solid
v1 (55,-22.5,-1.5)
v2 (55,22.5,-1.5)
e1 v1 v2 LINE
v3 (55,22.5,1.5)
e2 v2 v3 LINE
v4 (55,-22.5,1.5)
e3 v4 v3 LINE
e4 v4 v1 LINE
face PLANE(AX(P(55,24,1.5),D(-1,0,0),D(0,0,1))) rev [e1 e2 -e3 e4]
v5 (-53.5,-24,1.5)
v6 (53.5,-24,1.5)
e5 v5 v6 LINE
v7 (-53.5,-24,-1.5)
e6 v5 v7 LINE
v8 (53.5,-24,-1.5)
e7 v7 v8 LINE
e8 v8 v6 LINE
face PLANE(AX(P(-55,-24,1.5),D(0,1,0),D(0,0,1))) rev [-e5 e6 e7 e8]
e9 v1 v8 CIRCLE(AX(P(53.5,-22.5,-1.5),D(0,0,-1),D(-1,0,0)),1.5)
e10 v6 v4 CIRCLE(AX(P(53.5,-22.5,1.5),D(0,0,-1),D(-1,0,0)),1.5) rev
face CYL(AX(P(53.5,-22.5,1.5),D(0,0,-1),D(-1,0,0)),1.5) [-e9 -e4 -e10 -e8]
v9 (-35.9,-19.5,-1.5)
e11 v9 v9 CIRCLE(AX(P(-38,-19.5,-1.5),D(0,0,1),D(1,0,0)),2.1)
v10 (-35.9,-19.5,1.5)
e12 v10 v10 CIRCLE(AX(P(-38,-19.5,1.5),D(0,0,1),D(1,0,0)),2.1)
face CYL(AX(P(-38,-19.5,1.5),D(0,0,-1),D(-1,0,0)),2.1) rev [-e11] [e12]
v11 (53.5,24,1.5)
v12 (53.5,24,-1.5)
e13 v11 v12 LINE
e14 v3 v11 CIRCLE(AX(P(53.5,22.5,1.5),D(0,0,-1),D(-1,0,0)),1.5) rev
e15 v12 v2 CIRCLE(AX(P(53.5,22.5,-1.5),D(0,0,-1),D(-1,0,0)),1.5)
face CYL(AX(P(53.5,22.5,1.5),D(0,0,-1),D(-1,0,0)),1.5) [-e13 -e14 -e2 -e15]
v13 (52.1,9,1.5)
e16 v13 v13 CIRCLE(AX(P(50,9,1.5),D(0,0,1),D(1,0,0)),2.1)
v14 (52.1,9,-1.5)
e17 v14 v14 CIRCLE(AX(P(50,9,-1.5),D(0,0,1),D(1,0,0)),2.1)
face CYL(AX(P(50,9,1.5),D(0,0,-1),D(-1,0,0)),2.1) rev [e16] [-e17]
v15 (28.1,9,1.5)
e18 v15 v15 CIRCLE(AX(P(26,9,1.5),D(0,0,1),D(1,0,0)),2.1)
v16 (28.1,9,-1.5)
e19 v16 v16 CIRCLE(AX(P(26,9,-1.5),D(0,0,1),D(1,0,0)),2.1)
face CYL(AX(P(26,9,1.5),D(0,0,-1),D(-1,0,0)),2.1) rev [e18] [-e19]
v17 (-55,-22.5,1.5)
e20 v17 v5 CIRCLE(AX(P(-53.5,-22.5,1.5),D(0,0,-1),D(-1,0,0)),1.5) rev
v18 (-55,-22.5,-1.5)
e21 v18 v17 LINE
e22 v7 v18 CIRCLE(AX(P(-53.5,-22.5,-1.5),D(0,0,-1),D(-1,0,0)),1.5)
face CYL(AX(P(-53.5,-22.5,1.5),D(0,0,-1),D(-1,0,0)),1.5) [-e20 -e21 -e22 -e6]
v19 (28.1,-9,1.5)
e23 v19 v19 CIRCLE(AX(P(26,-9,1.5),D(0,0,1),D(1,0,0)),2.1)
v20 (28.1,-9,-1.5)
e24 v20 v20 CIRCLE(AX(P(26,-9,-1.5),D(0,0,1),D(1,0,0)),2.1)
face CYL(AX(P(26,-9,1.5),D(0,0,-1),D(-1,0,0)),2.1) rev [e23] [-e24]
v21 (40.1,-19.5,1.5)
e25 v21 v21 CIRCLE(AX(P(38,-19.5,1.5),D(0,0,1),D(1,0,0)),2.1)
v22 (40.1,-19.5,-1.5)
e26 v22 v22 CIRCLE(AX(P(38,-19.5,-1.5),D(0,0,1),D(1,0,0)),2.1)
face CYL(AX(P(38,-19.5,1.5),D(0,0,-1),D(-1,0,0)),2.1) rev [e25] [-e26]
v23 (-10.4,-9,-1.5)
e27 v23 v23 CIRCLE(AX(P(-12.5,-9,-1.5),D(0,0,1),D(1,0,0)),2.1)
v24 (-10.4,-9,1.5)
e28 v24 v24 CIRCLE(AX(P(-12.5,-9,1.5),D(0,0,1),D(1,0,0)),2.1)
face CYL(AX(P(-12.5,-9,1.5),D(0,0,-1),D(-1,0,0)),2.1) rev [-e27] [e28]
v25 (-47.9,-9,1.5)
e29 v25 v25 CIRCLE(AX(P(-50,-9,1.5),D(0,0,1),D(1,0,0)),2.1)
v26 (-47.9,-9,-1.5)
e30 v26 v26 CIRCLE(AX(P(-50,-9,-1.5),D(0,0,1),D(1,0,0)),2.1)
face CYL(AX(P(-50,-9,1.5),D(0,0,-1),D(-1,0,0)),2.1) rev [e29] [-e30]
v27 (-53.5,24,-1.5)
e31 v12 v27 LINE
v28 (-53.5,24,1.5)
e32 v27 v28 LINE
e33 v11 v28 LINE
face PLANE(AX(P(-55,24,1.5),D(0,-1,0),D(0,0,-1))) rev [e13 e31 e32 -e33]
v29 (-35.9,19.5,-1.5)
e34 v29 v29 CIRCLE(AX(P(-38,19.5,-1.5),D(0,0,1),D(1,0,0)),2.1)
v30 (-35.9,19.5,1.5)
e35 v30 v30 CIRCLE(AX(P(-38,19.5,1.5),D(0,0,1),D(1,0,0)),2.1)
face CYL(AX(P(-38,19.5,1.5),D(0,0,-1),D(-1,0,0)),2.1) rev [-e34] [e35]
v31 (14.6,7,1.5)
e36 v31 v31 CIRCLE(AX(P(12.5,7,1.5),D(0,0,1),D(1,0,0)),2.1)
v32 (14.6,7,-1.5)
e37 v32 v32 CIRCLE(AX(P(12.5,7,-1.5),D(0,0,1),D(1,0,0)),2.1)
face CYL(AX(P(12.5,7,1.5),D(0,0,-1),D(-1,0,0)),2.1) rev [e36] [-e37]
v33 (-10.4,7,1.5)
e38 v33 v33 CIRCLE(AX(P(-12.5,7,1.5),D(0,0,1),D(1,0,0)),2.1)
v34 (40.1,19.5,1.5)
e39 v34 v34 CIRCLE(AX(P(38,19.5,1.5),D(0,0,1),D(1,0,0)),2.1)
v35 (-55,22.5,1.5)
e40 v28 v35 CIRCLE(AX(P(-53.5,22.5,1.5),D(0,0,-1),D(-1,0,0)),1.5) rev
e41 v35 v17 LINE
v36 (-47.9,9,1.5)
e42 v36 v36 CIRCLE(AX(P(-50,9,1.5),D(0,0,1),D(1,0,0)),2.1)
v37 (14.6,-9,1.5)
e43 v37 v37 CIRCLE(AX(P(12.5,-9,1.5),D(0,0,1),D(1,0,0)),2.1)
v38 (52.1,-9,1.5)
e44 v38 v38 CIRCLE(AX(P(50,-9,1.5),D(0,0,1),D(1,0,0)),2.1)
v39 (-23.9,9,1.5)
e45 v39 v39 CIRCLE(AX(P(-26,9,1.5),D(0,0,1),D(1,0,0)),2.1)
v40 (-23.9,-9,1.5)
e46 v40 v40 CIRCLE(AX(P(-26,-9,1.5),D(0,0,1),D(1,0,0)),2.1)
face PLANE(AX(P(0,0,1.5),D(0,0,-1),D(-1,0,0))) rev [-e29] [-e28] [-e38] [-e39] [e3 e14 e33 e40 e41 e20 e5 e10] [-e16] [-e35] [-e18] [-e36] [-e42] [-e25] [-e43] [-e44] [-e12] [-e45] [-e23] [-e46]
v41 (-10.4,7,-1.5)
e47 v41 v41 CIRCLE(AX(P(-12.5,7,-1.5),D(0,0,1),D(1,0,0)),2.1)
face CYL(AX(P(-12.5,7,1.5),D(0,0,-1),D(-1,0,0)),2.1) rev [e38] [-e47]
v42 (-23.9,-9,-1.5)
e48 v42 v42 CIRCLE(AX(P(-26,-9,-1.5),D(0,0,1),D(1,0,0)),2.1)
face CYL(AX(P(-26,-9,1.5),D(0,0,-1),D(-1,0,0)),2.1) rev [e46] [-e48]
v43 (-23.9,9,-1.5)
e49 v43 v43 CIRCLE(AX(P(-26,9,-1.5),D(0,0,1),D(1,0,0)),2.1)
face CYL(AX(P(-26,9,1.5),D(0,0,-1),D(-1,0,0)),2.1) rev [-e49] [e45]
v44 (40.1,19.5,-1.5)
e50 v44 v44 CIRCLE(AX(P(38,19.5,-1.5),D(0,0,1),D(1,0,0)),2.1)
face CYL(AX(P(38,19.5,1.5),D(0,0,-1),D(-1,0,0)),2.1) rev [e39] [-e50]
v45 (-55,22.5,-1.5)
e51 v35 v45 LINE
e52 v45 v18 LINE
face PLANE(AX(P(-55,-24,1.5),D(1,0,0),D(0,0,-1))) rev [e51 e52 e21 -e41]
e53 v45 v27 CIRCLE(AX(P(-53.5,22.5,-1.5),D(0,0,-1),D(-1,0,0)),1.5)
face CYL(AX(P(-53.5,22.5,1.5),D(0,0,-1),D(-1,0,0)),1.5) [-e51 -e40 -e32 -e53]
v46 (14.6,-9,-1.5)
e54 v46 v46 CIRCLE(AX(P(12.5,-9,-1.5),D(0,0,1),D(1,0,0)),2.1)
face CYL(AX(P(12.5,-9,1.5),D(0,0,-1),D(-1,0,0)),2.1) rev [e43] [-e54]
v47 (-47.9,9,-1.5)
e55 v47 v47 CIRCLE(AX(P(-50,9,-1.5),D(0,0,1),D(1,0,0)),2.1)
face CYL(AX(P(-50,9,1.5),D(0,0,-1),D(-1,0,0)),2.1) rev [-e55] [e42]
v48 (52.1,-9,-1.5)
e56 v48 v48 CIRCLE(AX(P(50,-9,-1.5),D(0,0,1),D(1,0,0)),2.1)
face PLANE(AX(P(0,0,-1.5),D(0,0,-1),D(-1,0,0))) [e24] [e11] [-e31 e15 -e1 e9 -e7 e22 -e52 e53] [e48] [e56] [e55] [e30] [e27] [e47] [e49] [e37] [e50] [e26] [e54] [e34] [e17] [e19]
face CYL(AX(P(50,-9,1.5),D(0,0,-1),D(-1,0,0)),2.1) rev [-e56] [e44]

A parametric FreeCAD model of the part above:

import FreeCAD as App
import Part
import Sketcher

V = App.Vector


def edges_at(feature, points):
    """Names of the edges that pass closest to the given points."""
    edges = feature.Shape.Edges
    near = lambda p: min(range(len(edges)), key=lambda i: edges[i].distToShape(Part.Vertex(*p))[0])
    return sorted({f"Edge{near(p) + 1}" for p in points})


def add_polygon(sketch, points):
    """Adds a closed chain of lines whose ends are joined by coincident constraints."""
    first, n = sketch.GeometryCount, len(points)
    for a, b in zip(points, points[1:] + points[:1]):
        sketch.addGeometry(Part.LineSegment(App.Vector(*a, 0), App.Vector(*b, 0)), False)
    for i in range(n):
        sketch.addConstraint(Sketcher.Constraint("Coincident", first + i, 2, first + (i + 1) % n, 1))

doc = App.newDocument("Part")
body = doc.addObject("PartDesign::Body", "Body")

# Sketch on XY plane
sketch1 = doc.addObject("Sketcher::SketchObject", "Sketch")
body.addObject(sketch1)
sketch1.AttachmentSupport = (doc.XY_Plane, [""])
sketch1.MapMode = "FlatFace"
add_polygon(sketch1, [(-55, 24), (-55, -24), (55, -24), (55, 24)])  # lines 0-3
sketch1.addGeometry(Part.Circle(V(-38, -19.5, 0), V(0, 0, 1), 2.1), False)  # 4
sketch1.addGeometry(Part.Circle(V(-50, -9, 0), V(0, 0, 1), 2.1), False)  # 5
sketch1.addGeometry(Part.Circle(V(-26, -9, 0), V(0, 0, 1), 2.1), False)  # 6
sketch1.addGeometry(Part.Circle(V(-12.5, -9, 0), V(0, 0, 1), 2.1), False)  # 7
sketch1.addGeometry(Part.Circle(V(38, -19.5, 0), V(0, 0, 1), 2.1), False)  # 8
sketch1.addGeometry(Part.Circle(V(12.5, -9, 0), V(0, 0, 1), 2.1), False)  # 9
sketch1.addGeometry(Part.Circle(V(26, -9, 0), V(0, 0, 1), 2.1), False)  # 10
sketch1.addGeometry(Part.Circle(V(50, -9, 0), V(0, 0, 1), 2.1), False)  # 11
sketch1.addGeometry(Part.Circle(V(-50, 9, 0), V(0, 0, 1), 2.1), False)  # 12
sketch1.addGeometry(Part.Circle(V(-26, 9, 0), V(0, 0, 1), 2.1), False)  # 13
sketch1.addGeometry(Part.Circle(V(-12.5, 7, 0), V(0, 0, 1), 2.1), False)  # 14
sketch1.addGeometry(Part.Circle(V(-38, 19.5, 0), V(0, 0, 1), 2.1), False)  # 15
sketch1.addGeometry(Part.Circle(V(12.5, 7, 0), V(0, 0, 1), 2.1), False)  # 16
sketch1.addGeometry(Part.Circle(V(26, 9, 0), V(0, 0, 1), 2.1), False)  # 17
sketch1.addGeometry(Part.Circle(V(50, 9, 0), V(0, 0, 1), 2.1), False)  # 18
sketch1.addGeometry(Part.Circle(V(38, 19.5, 0), V(0, 0, 1), 2.1), False)  # 19
sketch1.addConstraint(Sketcher.Constraint("Vertical", 0))
sketch1.addConstraint(Sketcher.Constraint("Horizontal", 1))
sketch1.addConstraint(Sketcher.Constraint("Vertical", 2))
sketch1.addConstraint(Sketcher.Constraint("Horizontal", 3))
sketch1.addConstraint(Sketcher.Constraint("Equal", 4, 5))
sketch1.addConstraint(Sketcher.Constraint("Equal", 5, 6))
sketch1.addConstraint(Sketcher.Constraint("Equal", 6, 7))
sketch1.addConstraint(Sketcher.Constraint("Equal", 7, 8))
sketch1.addConstraint(Sketcher.Constraint("Equal", 8, 9))
sketch1.addConstraint(Sketcher.Constraint("Equal", 9, 10))
sketch1.addConstraint(Sketcher.Constraint("Equal", 10, 11))
sketch1.addConstraint(Sketcher.Constraint("Equal", 11, 12))
sketch1.addConstraint(Sketcher.Constraint("Equal", 12, 13))
sketch1.addConstraint(Sketcher.Constraint("Equal", 13, 14))
sketch1.addConstraint(Sketcher.Constraint("Equal", 14, 15))
sketch1.addConstraint(Sketcher.Constraint("Equal", 15, 16))
sketch1.addConstraint(Sketcher.Constraint("Equal", 16, 17))
sketch1.addConstraint(Sketcher.Constraint("Equal", 17, 18))
sketch1.addConstraint(Sketcher.Constraint("Equal", 18, 19))
sketch1.addConstraint(Sketcher.Constraint("Symmetric", 11, 3, 12, 3, -1, 1))
sketch1.addConstraint(Sketcher.Constraint("Symmetric", 10, 3, 13, 3, -1, 1))
sketch1.addConstraint(Sketcher.Constraint("Symmetric", 8, 3, 15, 3, -1, 1))
sketch1.addConstraint(Sketcher.Constraint("Symmetric", 6, 3, 17, 3, -1, 1))
sketch1.addConstraint(Sketcher.Constraint("Symmetric", 5, 3, 18, 3, -1, 1))
sketch1.addConstraint(Sketcher.Constraint("Symmetric", 4, 3, 19, 3, -1, 1))
sketch1.addConstraint(Sketcher.Constraint("Symmetric", 0, 2, 2, 2, -1, 1))
sketch1.addConstraint(Sketcher.Constraint("Symmetric", 4, 3, 8, 3, -2))
sketch1.addConstraint(Sketcher.Constraint("Symmetric", 7, 3, 9, 3, -2))
sketch1.addConstraint(Sketcher.Constraint("Symmetric", 6, 3, 10, 3, -2))
sketch1.addConstraint(Sketcher.Constraint("Symmetric", 5, 3, 11, 3, -2))
sketch1.addConstraint(Sketcher.Constraint("Symmetric", 14, 3, 16, 3, -2))
sketch1.addConstraint(Sketcher.Constraint("Horizontal", 5, 3, 6, 3))
sketch1.addConstraint(Sketcher.Constraint("Horizontal", 6, 3, 7, 3))
sketch1.addConstraint(Sketcher.Constraint("Vertical", 7, 3, 14, 3))
sketch1.addConstraint(Sketcher.Constraint("Diameter", 4, 4.2))
sketch1.addConstraint(Sketcher.Constraint("DistanceX", 1, 1, 1, 2, 110.0))
sketch1.addConstraint(Sketcher.Constraint("DistanceY", 0, 2, 0, 1, 48.0))
sketch1.addConstraint(Sketcher.Constraint("DistanceX", 4, 3, -1, 1, 38.0))
sketch1.addConstraint(Sketcher.Constraint("DistanceX", 5, 3, -1, 1, 50.0))
sketch1.addConstraint(Sketcher.Constraint("DistanceY", 5, 3, -1, 1, 9.0))
sketch1.addConstraint(Sketcher.Constraint("DistanceX", 6, 3, -1, 1, 26.0))
sketch1.addConstraint(Sketcher.Constraint("DistanceY", -1, 1, 14, 3, 7.0))
sketch1.addConstraint(Sketcher.Constraint("DistanceX", 7, 3, 9, 3, 25.0))
sketch1.addConstraint(Sketcher.Constraint("DistanceY", 4, 3, -1, 1, 19.5))
pad1 = doc.addObject("PartDesign::Pad", "Pad")
body.addObject(pad1)
pad1.Profile = sketch1
pad1.Length = 3
pad1.Midplane = True
doc.recompute()

fillet = doc.addObject("PartDesign::Fillet", "Fillet")
body.addObject(fillet)
fillet.Base = (pad1, edges_at(pad1, [
    (-55, 24, 0),
    (55, 24, 0),
    (55, -24, 0),
    (-55, -24, 0),
]))
fillet.Radius = 1.5

doc.recompute()
